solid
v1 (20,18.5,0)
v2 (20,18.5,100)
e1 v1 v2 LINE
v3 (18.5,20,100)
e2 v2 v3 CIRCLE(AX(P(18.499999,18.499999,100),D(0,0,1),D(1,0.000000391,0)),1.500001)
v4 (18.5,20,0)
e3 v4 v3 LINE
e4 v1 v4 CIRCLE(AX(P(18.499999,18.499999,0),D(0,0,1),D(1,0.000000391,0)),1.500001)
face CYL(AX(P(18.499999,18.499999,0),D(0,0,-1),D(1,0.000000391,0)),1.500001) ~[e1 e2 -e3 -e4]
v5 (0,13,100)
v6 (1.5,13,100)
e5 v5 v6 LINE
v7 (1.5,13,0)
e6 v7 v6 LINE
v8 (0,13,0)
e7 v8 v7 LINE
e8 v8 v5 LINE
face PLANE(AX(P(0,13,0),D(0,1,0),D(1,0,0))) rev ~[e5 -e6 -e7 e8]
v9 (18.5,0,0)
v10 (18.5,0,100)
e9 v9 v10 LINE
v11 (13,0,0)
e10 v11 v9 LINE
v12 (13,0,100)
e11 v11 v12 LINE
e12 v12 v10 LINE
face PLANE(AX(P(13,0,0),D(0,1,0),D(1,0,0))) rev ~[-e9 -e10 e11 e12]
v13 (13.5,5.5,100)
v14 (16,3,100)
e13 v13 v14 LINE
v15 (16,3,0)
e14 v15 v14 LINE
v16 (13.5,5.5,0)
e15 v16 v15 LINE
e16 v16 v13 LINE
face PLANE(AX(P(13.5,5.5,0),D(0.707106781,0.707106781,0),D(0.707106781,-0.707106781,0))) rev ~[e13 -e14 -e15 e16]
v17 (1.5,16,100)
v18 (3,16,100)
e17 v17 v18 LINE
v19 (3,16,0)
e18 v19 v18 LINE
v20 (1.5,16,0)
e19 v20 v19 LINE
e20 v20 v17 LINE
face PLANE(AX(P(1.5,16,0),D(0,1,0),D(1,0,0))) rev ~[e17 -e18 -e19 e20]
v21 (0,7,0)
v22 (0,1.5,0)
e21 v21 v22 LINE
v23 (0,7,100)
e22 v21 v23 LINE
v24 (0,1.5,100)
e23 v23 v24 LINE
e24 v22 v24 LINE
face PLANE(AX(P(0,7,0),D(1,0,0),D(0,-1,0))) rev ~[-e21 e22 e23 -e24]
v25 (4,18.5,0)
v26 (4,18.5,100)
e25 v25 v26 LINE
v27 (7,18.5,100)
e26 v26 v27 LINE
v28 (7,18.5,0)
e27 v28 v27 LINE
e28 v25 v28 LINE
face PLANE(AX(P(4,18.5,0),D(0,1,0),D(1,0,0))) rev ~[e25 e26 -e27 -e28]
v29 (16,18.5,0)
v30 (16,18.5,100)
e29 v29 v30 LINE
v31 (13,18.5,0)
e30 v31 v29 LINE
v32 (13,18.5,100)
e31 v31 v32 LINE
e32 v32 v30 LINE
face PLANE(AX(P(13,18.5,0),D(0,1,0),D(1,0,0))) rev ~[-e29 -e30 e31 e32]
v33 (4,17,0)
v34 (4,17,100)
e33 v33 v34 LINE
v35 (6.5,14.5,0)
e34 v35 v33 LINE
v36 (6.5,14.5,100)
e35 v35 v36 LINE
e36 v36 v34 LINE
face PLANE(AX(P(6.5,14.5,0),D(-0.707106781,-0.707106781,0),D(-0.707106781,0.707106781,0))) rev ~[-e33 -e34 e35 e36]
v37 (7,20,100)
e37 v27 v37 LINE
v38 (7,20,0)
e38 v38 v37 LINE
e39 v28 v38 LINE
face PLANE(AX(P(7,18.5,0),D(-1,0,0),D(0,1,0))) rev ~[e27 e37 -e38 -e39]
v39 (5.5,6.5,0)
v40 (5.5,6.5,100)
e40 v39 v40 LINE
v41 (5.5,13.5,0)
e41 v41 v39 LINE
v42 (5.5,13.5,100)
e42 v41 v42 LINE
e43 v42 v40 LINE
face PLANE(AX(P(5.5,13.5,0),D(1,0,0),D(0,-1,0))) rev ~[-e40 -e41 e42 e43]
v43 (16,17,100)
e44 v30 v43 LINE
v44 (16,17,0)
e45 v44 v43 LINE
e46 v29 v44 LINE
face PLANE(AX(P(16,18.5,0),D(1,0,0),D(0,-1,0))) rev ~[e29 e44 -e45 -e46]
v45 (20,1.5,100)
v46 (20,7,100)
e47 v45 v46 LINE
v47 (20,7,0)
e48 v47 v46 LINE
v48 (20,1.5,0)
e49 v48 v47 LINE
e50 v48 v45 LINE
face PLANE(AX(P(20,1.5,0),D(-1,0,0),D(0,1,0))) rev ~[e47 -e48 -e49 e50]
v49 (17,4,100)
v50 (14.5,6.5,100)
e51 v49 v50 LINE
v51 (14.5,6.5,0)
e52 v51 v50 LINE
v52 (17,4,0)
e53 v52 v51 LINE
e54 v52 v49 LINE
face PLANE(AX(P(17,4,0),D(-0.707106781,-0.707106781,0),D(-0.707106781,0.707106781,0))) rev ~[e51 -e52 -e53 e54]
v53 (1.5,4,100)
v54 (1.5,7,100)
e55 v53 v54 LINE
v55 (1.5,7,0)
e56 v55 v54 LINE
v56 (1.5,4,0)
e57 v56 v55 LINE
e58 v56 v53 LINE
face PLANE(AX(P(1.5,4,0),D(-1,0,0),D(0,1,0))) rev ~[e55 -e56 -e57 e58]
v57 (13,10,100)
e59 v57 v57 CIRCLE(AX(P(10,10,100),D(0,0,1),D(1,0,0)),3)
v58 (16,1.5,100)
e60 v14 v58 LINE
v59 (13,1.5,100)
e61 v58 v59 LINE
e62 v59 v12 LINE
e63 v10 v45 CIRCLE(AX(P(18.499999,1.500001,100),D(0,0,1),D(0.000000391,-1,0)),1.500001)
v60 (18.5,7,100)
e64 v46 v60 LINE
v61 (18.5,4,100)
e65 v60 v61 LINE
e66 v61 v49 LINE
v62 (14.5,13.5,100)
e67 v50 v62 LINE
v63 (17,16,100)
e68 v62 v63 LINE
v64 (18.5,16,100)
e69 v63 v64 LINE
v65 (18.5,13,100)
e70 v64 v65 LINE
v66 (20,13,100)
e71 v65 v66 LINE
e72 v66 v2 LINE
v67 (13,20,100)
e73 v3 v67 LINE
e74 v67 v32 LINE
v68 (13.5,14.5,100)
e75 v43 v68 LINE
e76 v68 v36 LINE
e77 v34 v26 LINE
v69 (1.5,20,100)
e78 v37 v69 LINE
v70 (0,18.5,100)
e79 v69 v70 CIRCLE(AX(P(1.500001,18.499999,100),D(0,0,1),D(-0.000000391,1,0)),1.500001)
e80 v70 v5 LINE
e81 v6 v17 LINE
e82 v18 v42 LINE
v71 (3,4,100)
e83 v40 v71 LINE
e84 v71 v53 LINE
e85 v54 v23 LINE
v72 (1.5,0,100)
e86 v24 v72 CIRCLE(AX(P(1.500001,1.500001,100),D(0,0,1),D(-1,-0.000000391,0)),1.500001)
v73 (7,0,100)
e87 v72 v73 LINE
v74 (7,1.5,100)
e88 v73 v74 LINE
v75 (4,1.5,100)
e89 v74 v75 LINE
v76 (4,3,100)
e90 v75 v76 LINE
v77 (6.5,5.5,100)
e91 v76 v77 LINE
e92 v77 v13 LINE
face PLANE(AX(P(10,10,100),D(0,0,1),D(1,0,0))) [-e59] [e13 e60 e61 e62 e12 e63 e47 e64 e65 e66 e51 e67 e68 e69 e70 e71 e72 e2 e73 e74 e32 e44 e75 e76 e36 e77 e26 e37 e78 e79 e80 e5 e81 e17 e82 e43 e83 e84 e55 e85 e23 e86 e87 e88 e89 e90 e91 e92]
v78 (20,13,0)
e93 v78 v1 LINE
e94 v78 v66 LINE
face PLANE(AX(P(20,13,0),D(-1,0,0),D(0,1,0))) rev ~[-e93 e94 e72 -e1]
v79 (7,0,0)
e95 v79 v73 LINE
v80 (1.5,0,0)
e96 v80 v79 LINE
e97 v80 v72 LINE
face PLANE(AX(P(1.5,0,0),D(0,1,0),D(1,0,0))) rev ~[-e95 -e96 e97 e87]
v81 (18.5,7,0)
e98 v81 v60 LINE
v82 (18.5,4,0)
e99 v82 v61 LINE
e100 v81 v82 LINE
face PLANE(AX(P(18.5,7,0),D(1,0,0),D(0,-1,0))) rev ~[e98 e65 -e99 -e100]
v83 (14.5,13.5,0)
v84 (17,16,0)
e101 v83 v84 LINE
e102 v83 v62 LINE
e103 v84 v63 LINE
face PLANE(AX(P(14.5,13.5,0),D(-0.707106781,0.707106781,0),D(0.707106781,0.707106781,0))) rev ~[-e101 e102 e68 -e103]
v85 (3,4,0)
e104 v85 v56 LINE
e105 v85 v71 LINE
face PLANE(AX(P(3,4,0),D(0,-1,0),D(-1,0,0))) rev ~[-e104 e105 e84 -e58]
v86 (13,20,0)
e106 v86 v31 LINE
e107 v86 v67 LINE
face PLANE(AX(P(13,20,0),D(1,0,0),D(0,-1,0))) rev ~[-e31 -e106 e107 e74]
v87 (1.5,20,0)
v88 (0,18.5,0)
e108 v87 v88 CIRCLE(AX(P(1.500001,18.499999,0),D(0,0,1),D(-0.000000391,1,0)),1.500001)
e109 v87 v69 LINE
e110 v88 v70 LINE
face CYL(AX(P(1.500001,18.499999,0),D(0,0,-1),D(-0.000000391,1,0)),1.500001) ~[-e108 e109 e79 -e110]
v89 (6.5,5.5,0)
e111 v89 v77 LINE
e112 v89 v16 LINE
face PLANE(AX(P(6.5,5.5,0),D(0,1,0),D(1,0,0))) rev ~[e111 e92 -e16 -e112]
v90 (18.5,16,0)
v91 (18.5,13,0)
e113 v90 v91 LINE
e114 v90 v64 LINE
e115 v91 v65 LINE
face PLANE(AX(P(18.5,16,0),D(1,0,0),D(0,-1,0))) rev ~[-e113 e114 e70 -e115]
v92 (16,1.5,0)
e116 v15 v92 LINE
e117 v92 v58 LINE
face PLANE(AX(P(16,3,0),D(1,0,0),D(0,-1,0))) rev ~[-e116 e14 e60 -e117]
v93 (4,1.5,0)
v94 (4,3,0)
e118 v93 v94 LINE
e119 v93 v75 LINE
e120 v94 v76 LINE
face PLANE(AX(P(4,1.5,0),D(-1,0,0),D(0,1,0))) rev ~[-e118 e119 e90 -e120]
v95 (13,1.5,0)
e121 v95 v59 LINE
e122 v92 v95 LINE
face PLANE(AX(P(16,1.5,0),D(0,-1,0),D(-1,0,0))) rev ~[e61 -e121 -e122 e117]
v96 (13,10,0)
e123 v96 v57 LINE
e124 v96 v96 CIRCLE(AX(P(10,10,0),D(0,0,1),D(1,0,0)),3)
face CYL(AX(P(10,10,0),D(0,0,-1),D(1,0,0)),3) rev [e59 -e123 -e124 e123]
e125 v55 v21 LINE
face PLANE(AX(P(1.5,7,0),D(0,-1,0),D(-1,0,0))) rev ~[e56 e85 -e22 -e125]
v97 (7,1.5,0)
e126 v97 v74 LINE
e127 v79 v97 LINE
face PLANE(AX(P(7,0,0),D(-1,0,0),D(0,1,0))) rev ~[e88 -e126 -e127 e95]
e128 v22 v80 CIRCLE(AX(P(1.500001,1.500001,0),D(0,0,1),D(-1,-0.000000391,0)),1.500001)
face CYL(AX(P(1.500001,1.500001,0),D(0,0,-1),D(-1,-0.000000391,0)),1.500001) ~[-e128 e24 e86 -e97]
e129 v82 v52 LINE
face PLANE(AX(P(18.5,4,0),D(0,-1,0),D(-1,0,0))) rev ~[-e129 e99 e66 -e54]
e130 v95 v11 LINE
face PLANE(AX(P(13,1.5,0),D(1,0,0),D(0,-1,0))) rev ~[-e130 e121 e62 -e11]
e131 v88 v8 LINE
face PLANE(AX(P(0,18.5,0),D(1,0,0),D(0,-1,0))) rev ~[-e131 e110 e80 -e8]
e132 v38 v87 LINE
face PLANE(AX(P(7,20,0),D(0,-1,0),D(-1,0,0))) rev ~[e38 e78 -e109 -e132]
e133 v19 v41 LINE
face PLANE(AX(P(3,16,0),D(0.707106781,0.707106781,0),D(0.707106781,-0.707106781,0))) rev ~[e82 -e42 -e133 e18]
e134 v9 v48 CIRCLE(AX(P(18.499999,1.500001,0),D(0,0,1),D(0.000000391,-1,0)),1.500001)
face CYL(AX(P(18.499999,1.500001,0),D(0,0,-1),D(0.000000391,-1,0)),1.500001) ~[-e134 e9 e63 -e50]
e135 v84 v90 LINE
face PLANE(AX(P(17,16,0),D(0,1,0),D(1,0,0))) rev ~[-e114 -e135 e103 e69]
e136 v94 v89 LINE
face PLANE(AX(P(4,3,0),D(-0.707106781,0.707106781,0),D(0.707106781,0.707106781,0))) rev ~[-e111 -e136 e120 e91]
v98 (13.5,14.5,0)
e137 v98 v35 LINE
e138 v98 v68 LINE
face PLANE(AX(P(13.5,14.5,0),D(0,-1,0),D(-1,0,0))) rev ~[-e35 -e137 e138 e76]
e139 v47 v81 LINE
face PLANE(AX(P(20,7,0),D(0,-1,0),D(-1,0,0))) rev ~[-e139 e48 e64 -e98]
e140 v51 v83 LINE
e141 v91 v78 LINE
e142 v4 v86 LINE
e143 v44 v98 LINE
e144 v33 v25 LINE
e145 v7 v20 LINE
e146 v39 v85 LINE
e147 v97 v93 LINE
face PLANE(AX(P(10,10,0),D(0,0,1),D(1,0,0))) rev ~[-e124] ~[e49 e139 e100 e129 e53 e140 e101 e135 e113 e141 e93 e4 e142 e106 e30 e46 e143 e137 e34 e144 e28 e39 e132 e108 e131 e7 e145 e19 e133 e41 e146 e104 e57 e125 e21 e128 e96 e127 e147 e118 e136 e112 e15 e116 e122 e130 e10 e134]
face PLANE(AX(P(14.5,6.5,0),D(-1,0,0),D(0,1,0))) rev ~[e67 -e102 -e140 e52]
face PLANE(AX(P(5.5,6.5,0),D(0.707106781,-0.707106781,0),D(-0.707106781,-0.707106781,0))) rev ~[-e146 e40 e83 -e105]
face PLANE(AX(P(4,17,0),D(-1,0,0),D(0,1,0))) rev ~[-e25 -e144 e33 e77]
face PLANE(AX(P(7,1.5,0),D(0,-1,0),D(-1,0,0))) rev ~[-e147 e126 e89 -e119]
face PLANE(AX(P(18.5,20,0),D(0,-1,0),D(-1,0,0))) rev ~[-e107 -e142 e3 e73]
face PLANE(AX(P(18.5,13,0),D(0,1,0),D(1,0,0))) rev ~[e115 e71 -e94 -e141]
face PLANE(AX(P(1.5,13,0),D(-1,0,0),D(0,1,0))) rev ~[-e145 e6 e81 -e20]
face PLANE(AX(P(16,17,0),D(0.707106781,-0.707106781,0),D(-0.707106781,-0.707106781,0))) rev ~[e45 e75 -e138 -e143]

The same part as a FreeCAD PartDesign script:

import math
import FreeCAD as App
import Part
import Sketcher

V = App.Vector
Q = App.Units.Quantity

doc = App.newDocument("Part")
body = doc.addObject("PartDesign::Body", "Body")

sketch1 = body.newObject("Sketcher::SketchObject", "Sketch")
sketch1.AttachmentSupport = (doc.getObject("XY_Plane"), [""])
sketch1.MapMode = "FlatFace"
sketch1.addGeometry([
    Part.ArcOfCircle(Part.Circle(V(1.500001, 1.500001, 0), V(0, 0, 1), 1.500001), math.radians(-179.999978), math.radians(-90.000022)),
    Part.LineSegment(V(1.5, 0, 0), V(7, 0, 0)),
    Part.LineSegment(V(7, 0, 0), V(7, 1.5, 0)),
    Part.LineSegment(V(7, 1.5, 0), V(4, 1.5, 0)),
    Part.LineSegment(V(4, 1.5, 0), V(4, 3, 0)),
    Part.LineSegment(V(4, 3, 0), V(6.5, 5.5, 0)),
    Part.LineSegment(V(6.5, 5.5, 0), V(13.5, 5.5, 0)),
    Part.LineSegment(V(13.5, 5.5, 0), V(16, 3, 0)),
    Part.LineSegment(V(16, 3, 0), V(16, 1.5, 0)),
    Part.LineSegment(V(16, 1.5, 0), V(13, 1.5, 0)),
    Part.LineSegment(V(13, 1.5, 0), V(13, 0, 0)),
    Part.LineSegment(V(13, 0, 0), V(18.5, 0, 0)),
    Part.ArcOfCircle(Part.Circle(V(18.499999, 1.500001, 0), V(0, 0, 1), 1.500001), math.radians(-89.999978), math.radians(-0.000022)),
    Part.LineSegment(V(20, 1.5, 0), V(20, 7, 0)),
    Part.LineSegment(V(20, 7, 0), V(18.5, 7, 0)),
    Part.LineSegment(V(18.5, 7, 0), V(18.5, 4, 0)),
    Part.LineSegment(V(18.5, 4, 0), V(17, 4, 0)),
    Part.LineSegment(V(17, 4, 0), V(14.5, 6.5, 0)),
    Part.LineSegment(V(14.5, 6.5, 0), V(14.5, 13.5, 0)),
    Part.LineSegment(V(14.5, 13.5, 0), V(17, 16, 0)),
    Part.LineSegment(V(17, 16, 0), V(18.5, 16, 0)),
    Part.LineSegment(V(18.5, 16, 0), V(18.5, 13, 0)),
    Part.LineSegment(V(18.5, 13, 0), V(20, 13, 0)),
    Part.LineSegment(V(20, 13, 0), V(20, 18.5, 0)),
    Part.ArcOfCircle(Part.Circle(V(18.499999, 18.499999, 0), V(0, 0, 1), 1.500001), math.radians(0.000022), math.radians(89.999978)),
    Part.LineSegment(V(18.5, 20, 0), V(13, 20, 0)),
    Part.LineSegment(V(13, 20, 0), V(13, 18.5, 0)),
    Part.LineSegment(V(13, 18.5, 0), V(16, 18.5, 0)),
    Part.LineSegment(V(16, 18.5, 0), V(16, 17, 0)),
    Part.LineSegment(V(16, 17, 0), V(13.5, 14.5, 0)),
    Part.LineSegment(V(13.5, 14.5, 0), V(6.5, 14.5, 0)),
    Part.LineSegment(V(6.5, 14.5, 0), V(4, 17, 0)),
    Part.LineSegment(V(4, 17, 0), V(4, 18.5, 0)),
    Part.LineSegment(V(4, 18.5, 0), V(7, 18.5, 0)),
    Part.LineSegment(V(7, 18.5, 0), V(7, 20, 0)),
    Part.LineSegment(V(7, 20, 0), V(1.5, 20, 0)),
    Part.ArcOfCircle(Part.Circle(V(1.500001, 18.499999, 0), V(0, 0, 1), 1.500001), math.radians(90.000022), math.radians(179.999978)),
    Part.LineSegment(V(0, 18.5, 0), V(0, 13, 0)),
    Part.LineSegment(V(0, 13, 0), V(1.5, 13, 0)),
    Part.LineSegment(V(1.5, 13, 0), V(1.5, 16, 0)),
    Part.LineSegment(V(1.5, 16, 0), V(3, 16, 0)),
    Part.LineSegment(V(3, 16, 0), V(5.5, 13.5, 0)),
    Part.LineSegment(V(5.5, 13.5, 0), V(5.5, 6.5, 0)),
    Part.LineSegment(V(5.5, 6.5, 0), V(3, 4, 0)),
    Part.LineSegment(V(3, 4, 0), V(1.5, 4, 0)),
    Part.LineSegment(V(1.5, 4, 0), V(1.5, 7, 0)),
    Part.LineSegment(V(1.5, 7, 0), V(0, 7, 0)),
    Part.LineSegment(V(0, 7, 0), V(0, 1.5, 0)),
    Part.Circle(V(10, 10, 0), V(0, 0, 1), 3),
], False)
sketch1.addConstraint([
    Sketcher.Constraint("Tangent", 0, 2, 1, 1),
    Sketcher.Constraint("Coincident", 1, 2, 2, 1),
    Sketcher.Constraint("Coincident", 2, 2, 3, 1),
    Sketcher.Constraint("Coincident", 3, 2, 4, 1),
    Sketcher.Constraint("Coincident", 4, 2, 5, 1),
    Sketcher.Constraint("Coincident", 5, 2, 6, 1),
    Sketcher.Constraint("Coincident", 6, 2, 7, 1),
    Sketcher.Constraint("Coincident", 7, 2, 8, 1),
    Sketcher.Constraint("Coincident", 8, 2, 9, 1),
    Sketcher.Constraint("Coincident", 9, 2, 10, 1),
    Sketcher.Constraint("Coincident", 10, 2, 11, 1),
    Sketcher.Constraint("Tangent", 11, 2, 12, 1),
    Sketcher.Constraint("Tangent", 12, 2, 13, 1),
    Sketcher.Constraint("Coincident", 13, 2, 14, 1),
    Sketcher.Constraint("Coincident", 14, 2, 15, 1),
    Sketcher.Constraint("Coincident", 15, 2, 16, 1),
    Sketcher.Constraint("Coincident", 16, 2, 17, 1),
    Sketcher.Constraint("Coincident", 17, 2, 18, 1),
    Sketcher.Constraint("Coincident", 18, 2, 19, 1),
    Sketcher.Constraint("Coincident", 19, 2, 20, 1),
    Sketcher.Constraint("Coincident", 20, 2, 21, 1),
    Sketcher.Constraint("Coincident", 21, 2, 22, 1),
    Sketcher.Constraint("Coincident", 22, 2, 23, 1),
    Sketcher.Constraint("Tangent", 23, 2, 24, 1),
    Sketcher.Constraint("Tangent", 24, 2, 25, 1),
    Sketcher.Constraint("Coincident", 25, 2, 26, 1),
    Sketcher.Constraint("Coincident", 26, 2, 27, 1),
    Sketcher.Constraint("Coincident", 27, 2, 28, 1),
    Sketcher.Constraint("Coincident", 28, 2, 29, 1),
    Sketcher.Constraint("Coincident", 29, 2, 30, 1),
    Sketcher.Constraint("Coincident", 30, 2, 31, 1),
    Sketcher.Constraint("Coincident", 31, 2, 32, 1),
    Sketcher.Constraint("Coincident", 32, 2, 33, 1),
    Sketcher.Constraint("Coincident", 33, 2, 34, 1),
    Sketcher.Constraint("Coincident", 34, 2, 35, 1),
    Sketcher.Constraint("Tangent", 35, 2, 36, 1),
    Sketcher.Constraint("Tangent", 36, 2, 37, 1),
    Sketcher.Constraint("Coincident", 37, 2, 38, 1),
    Sketcher.Constraint("Coincident", 38, 2, 39, 1),
    Sketcher.Constraint("Coincident", 39, 2, 40, 1),
    Sketcher.Constraint("Coincident", 40, 2, 41, 1),
    Sketcher.Constraint("Coincident", 41, 2, 42, 1),
    Sketcher.Constraint("Coincident", 42, 2, 43, 1),
    Sketcher.Constraint("Coincident", 43, 2, 44, 1),
    Sketcher.Constraint("Coincident", 44, 2, 45, 1),
    Sketcher.Constraint("Coincident", 45, 2, 46, 1),
    Sketcher.Constraint("Coincident", 46, 2, 47, 1),
    Sketcher.Constraint("Tangent", 47, 2, 0, 1),
    Sketcher.Constraint("Horizontal", 1),
    Sketcher.Constraint("Vertical", 2),
    Sketcher.Constraint("Horizontal", 3),
    Sketcher.Constraint("Vertical", 4),
    Sketcher.Constraint("Horizontal", 6),
    Sketcher.Constraint("Vertical", 8),
    Sketcher.Constraint("Horizontal", 9),
    Sketcher.Constraint("Vertical", 10),
    Sketcher.Constraint("Horizontal", 11),
    Sketcher.Constraint("Vertical", 13),
    Sketcher.Constraint("Horizontal", 14),
    Sketcher.Constraint("Vertical", 15),
    Sketcher.Constraint("Horizontal", 16),
    Sketcher.Constraint("Vertical", 18),
    Sketcher.Constraint("Horizontal", 20),
    Sketcher.Constraint("Vertical", 21),
    Sketcher.Constraint("Horizontal", 22),
    Sketcher.Constraint("Vertical", 23),
    Sketcher.Constraint("Horizontal", 25),
    Sketcher.Constraint("Vertical", 26),
    Sketcher.Constraint("Horizontal", 27),
    Sketcher.Constraint("Vertical", 28),
    Sketcher.Constraint("Horizontal", 30),
    Sketcher.Constraint("Vertical", 32),
    Sketcher.Constraint("Horizontal", 33),
    Sketcher.Constraint("Vertical", 34),
    Sketcher.Constraint("Horizontal", 35),
    Sketcher.Constraint("Vertical", 37),
    Sketcher.Constraint("Horizontal", 38),
    Sketcher.Constraint("Vertical", 39),
    Sketcher.Constraint("Horizontal", 40),
    Sketcher.Constraint("Vertical", 42),
    Sketcher.Constraint("Horizontal", 44),
    Sketcher.Constraint("Vertical", 45),
    Sketcher.Constraint("Horizontal", 46),
    Sketcher.Constraint("Vertical", 47),
    Sketcher.Constraint("Equal", 0, 12),
    Sketcher.Constraint("Equal", 12, 24),
    Sketcher.Constraint("Equal", 24, 36),
    Sketcher.Constraint("PointOnObject", 0, 2, -1),
    Sketcher.Constraint("PointOnObject", 10, 2, -1),
    Sketcher.Constraint("PointOnObject", 36, 2, -2),
    Sketcher.Constraint("PointOnObject", 46, 2, -2),
    Sketcher.Constraint("Perpendicular", 5, 7),
    Sketcher.Constraint("Parallel", 7, 17),
    Sketcher.Constraint("Perpendicular", 17, 19),
    Sketcher.Constraint("Parallel", 19, 29),
    Sketcher.Constraint("Perpendicular", 29, 31),
    Sketcher.Constraint("Parallel", 31, 41),
    Sketcher.Constraint("Perpendicular", 41, 43),
    Sketcher.Constraint("Horizontal", 24, 3, 36, 3),
    Sketcher.Constraint("Horizontal", 12, 3, 2, 2),
    Sketcher.Constraint("Horizontal", 4, 2, 7, 2),
    Sketcher.Constraint("Horizontal", 3, 2, 8, 2),
    Sketcher.Constraint("Horizontal", 23, 2, 26, 2),
    Sketcher.Constraint("Horizontal", 28, 2, 31, 2),
    Sketcher.Constraint("Horizontal", 27, 2, 32, 2),
    Sketcher.Constraint("Horizontal", 22, 2, 37, 2),
    Sketcher.Constraint("Horizontal", 20, 2, 39, 2),
    Sketcher.Constraint("Horizontal", 18, 2, 41, 2),
    Sketcher.Constraint("Horizontal", 17, 2, 42, 2),
    Sketcher.Constraint("Horizontal", 16, 2, 43, 2),
    Sketcher.Constraint("Horizontal", 14, 2, 45, 2),
    Sketcher.Constraint("Vertical", 12, 3, 24, 3),
    Sketcher.Constraint("Vertical", 11, 2, 14, 2),
    Sketcher.Constraint("Vertical", 16, 2, 19, 2),
    Sketcher.Constraint("Vertical", 15, 2, 20, 2),
    Sketcher.Constraint("Vertical", 10, 2, 25, 2),
    Sketcher.Constraint("Vertical", 8, 2, 27, 2),
    Sketcher.Constraint("Vertical", 6, 2, 29, 2),
    Sketcher.Constraint("Vertical", 5, 2, 30, 2),
    Sketcher.Constraint("Vertical", 4, 2, 31, 2),
    Sketcher.Constraint("Vertical", 2, 2, 33, 2),
    Sketcher.Constraint("Vertical", 35, 2, 38, 2),
    Sketcher.Constraint("Vertical", 39, 2, 44, 2),
    Sketcher.Constraint("Equal", 3, 9),
    Sketcher.Constraint("Equal", 1, 11),
    Sketcher.Constraint("Equal", 14, 16),
    Sketcher.Constraint("Equal", 38, 40),
    Sketcher.Constraint("Equal", 2, 4),
    Sketcher.Constraint("Equal", 35, 13),
    Sketcher.Constraint("Equal", 33, 15),
    Sketcher.Constraint("Equal", 30, 18),
    Sketcher.Constraint("Equal", 15, 21),
    Sketcher.Constraint("Equal", 13, 23),
    Sketcher.Constraint("Equal", 26, 28),
    Sketcher.Constraint("Equal", 7, 17),
    Sketcher.Constraint("Diameter", 48, Q("6 mm")),
    Sketcher.Constraint("Radius", 0, Q("1.500001 mm")),
    Sketcher.Constraint("DistanceX", 3, 2, 3, 1, Q("3 mm")),
    Sketcher.Constraint("DistanceX", 6, 1, 6, 2, Q("7 mm")),
    Sketcher.Constraint("DistanceX", 1, 1, 1, 2, Q("5.5 mm")),
    Sketcher.Constraint("DistanceX", -1, 1, 48, 3, Q("10 mm")),
    Sketcher.Constraint("DistanceY", -1, 1, 48, 3, Q("10 mm")),
    Sketcher.Constraint("DistanceX", -1, 1, 7, 2, Q("16 mm")),
])
pad1 = body.newObject("PartDesign::Pad", "Pad")
pad1.Profile = sketch1
pad1.Length = 100

doc.recompute()
